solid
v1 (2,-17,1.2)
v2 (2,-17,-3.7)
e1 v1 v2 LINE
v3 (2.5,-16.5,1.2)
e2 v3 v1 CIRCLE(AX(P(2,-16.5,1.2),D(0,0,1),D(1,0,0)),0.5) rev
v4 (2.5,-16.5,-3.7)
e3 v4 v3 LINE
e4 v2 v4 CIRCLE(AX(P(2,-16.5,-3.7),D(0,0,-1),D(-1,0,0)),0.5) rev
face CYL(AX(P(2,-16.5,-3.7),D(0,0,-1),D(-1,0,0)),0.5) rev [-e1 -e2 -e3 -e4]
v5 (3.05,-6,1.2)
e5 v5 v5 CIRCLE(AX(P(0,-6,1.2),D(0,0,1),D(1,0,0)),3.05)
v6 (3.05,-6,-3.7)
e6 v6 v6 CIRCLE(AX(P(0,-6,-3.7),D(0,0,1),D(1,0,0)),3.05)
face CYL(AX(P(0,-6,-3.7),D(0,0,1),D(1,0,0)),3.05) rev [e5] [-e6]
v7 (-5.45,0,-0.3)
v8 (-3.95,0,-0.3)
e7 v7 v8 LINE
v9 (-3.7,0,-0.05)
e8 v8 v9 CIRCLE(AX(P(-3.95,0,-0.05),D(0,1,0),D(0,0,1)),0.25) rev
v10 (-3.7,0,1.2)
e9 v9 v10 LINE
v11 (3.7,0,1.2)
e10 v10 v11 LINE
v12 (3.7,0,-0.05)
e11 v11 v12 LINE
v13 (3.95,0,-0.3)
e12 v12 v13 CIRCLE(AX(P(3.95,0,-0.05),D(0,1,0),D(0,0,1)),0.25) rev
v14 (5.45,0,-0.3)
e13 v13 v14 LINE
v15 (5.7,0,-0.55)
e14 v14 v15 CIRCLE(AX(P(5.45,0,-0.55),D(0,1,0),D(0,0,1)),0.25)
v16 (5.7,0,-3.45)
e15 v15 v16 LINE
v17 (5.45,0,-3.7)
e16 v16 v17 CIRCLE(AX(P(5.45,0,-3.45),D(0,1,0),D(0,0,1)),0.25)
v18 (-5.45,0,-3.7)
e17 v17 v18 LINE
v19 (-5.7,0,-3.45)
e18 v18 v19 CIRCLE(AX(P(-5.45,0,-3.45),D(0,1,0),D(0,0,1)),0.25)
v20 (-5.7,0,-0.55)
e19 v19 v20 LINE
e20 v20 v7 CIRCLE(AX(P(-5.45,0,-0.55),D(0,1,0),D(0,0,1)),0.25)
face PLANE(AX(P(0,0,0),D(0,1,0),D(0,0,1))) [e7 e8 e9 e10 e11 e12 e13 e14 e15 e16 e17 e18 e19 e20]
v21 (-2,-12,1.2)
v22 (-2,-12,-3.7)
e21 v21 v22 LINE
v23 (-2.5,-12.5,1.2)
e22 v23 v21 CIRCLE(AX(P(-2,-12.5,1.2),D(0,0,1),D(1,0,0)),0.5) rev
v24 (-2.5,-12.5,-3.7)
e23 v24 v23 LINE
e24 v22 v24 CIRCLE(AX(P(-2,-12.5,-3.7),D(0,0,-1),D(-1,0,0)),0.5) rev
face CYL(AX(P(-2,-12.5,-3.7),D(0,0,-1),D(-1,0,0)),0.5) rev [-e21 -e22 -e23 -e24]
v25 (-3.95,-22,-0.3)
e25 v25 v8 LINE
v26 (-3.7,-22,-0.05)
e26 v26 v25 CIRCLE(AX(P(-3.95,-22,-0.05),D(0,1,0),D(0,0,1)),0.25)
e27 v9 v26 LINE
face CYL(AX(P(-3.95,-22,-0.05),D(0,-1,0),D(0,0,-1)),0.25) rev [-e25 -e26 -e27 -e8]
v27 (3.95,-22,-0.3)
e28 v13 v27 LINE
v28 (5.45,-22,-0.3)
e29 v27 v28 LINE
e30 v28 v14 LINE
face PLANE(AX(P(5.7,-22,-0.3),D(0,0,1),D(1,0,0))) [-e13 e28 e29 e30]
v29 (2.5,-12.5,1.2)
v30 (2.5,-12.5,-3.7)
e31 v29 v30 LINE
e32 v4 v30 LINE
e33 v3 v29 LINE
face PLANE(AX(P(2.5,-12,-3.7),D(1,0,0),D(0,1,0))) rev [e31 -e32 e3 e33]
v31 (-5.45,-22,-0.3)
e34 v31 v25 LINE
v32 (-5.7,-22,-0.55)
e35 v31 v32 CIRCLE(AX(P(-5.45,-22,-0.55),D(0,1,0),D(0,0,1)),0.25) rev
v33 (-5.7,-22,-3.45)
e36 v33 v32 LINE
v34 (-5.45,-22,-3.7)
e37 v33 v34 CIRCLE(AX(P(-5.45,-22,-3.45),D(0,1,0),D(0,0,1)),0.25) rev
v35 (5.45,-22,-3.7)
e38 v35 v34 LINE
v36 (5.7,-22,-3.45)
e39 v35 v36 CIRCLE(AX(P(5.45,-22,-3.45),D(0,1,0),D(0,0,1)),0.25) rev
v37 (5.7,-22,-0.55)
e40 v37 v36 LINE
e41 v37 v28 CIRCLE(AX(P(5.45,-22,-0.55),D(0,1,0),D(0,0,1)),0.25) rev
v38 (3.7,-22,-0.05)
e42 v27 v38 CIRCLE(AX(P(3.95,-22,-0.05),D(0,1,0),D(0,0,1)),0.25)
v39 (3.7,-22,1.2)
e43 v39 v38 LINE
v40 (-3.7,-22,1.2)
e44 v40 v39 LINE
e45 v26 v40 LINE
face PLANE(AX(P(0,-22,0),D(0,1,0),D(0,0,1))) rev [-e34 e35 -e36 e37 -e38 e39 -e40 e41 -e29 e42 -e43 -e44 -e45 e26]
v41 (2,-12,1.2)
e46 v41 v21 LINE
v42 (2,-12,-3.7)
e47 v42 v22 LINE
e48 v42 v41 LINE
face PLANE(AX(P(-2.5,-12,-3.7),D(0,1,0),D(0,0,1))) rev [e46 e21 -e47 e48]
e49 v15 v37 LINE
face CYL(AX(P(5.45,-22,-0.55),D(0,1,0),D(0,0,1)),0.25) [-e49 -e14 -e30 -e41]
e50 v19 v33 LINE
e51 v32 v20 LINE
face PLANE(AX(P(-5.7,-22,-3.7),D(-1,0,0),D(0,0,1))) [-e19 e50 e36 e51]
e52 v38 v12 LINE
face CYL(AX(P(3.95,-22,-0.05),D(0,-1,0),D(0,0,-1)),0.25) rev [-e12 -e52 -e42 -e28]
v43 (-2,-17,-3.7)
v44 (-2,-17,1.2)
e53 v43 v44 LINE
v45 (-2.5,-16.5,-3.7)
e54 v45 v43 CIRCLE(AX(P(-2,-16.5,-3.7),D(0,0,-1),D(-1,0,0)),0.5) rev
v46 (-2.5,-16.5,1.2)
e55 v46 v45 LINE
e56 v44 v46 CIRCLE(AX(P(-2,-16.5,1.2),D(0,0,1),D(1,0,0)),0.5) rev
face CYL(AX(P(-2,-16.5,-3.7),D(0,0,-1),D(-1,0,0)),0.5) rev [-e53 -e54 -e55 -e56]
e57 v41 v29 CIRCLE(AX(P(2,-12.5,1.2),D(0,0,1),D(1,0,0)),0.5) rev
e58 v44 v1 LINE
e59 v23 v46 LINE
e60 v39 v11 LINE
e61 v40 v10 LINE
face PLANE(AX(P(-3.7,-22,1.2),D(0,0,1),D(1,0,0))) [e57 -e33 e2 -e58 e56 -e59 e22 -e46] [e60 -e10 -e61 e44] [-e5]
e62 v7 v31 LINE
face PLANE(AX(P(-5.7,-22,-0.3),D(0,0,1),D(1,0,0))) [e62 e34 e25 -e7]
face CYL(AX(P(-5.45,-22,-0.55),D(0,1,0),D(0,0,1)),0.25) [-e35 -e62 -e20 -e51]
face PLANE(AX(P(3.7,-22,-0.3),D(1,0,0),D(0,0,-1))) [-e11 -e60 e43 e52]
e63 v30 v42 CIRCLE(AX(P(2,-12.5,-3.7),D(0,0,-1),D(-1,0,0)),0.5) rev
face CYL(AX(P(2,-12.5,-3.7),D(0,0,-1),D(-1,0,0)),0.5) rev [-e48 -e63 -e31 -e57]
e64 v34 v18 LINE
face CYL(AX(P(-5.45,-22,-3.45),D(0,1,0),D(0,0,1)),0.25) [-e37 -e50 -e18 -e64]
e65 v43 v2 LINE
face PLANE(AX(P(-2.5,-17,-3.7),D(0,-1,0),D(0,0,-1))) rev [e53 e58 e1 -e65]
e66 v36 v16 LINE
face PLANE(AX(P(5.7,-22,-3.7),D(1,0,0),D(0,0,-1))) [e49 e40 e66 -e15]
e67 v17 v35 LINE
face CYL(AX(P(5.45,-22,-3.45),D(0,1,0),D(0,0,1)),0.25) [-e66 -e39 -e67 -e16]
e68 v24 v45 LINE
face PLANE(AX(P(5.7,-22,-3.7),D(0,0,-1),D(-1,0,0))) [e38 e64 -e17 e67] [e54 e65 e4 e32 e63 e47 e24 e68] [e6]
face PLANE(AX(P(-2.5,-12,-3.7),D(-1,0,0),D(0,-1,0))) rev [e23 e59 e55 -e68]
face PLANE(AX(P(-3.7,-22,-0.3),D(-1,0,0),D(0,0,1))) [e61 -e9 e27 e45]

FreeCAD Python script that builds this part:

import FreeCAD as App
import Part
import Sketcher

V = App.Vector


def edges_at(feature, points):
    """Names of the edges that pass closest to the given points."""
    edges = feature.Shape.Edges
    near = lambda p: min(range(len(edges)), key=lambda i: edges[i].distToShape(Part.Vertex(*p))[0])
    return sorted({f"Edge{near(p) + 1}" for p in points})


def add_polygon(sketch, points):
    """Adds a closed chain of lines whose ends are joined by coincident constraints."""
    first, n = sketch.GeometryCount, len(points)
    for a, b in zip(points, points[1:] + points[:1]):
        sketch.addGeometry(Part.LineSegment(App.Vector(*a, 0), App.Vector(*b, 0)), False)
    for i in range(n):
        sketch.addConstraint(Sketcher.Constraint("Coincident", first + i, 2, first + (i + 1) % n, 1))

doc = App.newDocument("Part")
body = doc.addObject("PartDesign::Body", "Body")

sketch1 = body.newObject("Sketcher::SketchObject", "Sketch")
sketch1.AttachmentSupport = (doc.getObject("XZ_Plane"), [""])
sketch1.MapMode = "FlatFace"
add_polygon(sketch1, [(3.7, 1.2), (3.7, -0.3), (5.7, -0.3), (5.7, -3.7), (-5.7, -3.7), (-5.7, -0.3), (-3.7, -0.3), (-3.7, 1.2)])
sketch1.addConstraint([
    Sketcher.Constraint("Vertical", 0),
    Sketcher.Constraint("Horizontal", 1),
    Sketcher.Constraint("Vertical", 2),
    Sketcher.Constraint("Horizontal", 3),
    Sketcher.Constraint("Vertical", 4),
    Sketcher.Constraint("Horizontal", 5),
    Sketcher.Constraint("Vertical", 6),
    Sketcher.Constraint("Horizontal", 7),
    Sketcher.Constraint("Symmetric", 1, 2, 4, 2, -2),
    Sketcher.Constraint("Equal", 1, 5),
    Sketcher.Constraint("DistanceX", 1, 1, 1, 2, 2.0),
    Sketcher.Constraint("DistanceX", 3, 2, 3, 1, 11.4),
    Sketcher.Constraint("DistanceY", 0, 2, 0, 1, 1.5),
    Sketcher.Constraint("DistanceY", 2, 2, 2, 1, 3.4),
    Sketcher.Constraint("DistanceY", 0, 2, -1, 1, 0.3),
])
pad1 = body.newObject("PartDesign::Pad", "Pad")
pad1.Profile = sketch1
pad1.Length = 22

sketch2 = body.newObject("Sketcher::SketchObject", "Sketch001")
sketch2.AttachmentSupport = (doc.getObject("XY_Plane"), [""])
sketch2.MapMode = "FlatFace"
sketch2.AttachmentOffset = App.Placement(V(0, 0, 1.2), App.Rotation())
sketch2.addGeometry(Part.Circle(V(0, -6, 0), V(0, 0, 1), 3), False)
add_polygon(sketch2, [(-2.5, -12), (-2.5, -17), (2.5, -17), (2.5, -12)])
sketch2.addConstraint([
    Sketcher.Constraint("Vertical", 1),
    Sketcher.Constraint("Horizontal", 2),
    Sketcher.Constraint("Vertical", 3),
    Sketcher.Constraint("Horizontal", 4),
    Sketcher.Constraint("PointOnObject", 0, 3, -2),
    Sketcher.Constraint("Equal", 4, 1),
    Sketcher.Constraint("Diameter", 0, 6.1),
    Sketcher.Constraint("DistanceX", 2, 1, 2, 2, 5.0),
    Sketcher.Constraint("DistanceY", 0, 3, -1, 1, 6.0),
    Sketcher.Constraint("DistanceY", 1, 2, -1, 1, 17.0),
    Sketcher.Constraint("DistanceX", 1, 2, -1, 1, 2.5),
])
pocket1 = body.newObject("PartDesign::Pocket", "Pocket")
pocket1.Profile = sketch2
pocket1.Type = "ThroughAll"
doc.recompute()

fillet = body.newObject("PartDesign::Fillet", "Fillet")
fillet.Base = (pocket1, edges_at(pocket1, [
    (3.7, -11, -0.3),
    (-3.7, -11, -0.3),
    (-5.7, -11, -0.3),
    (-5.7, -11, -3.7),
    (5.7, -11, -3.7),
    (5.7, -11, -0.3),
]))
fillet.Radius = 0.25
doc.recompute()

fillet2 = body.newObject("PartDesign::Fillet", "Fillet001")
fillet2.Base = (fillet, edges_at(fillet, [
    (2.5, -12, -1.25),
    (2.5, -17, -1.25),
    (-2.5, -17, -1.25),
    (-2.5, -12, -1.25),
]))
fillet2.Radius = 0.5

doc.recompute()
